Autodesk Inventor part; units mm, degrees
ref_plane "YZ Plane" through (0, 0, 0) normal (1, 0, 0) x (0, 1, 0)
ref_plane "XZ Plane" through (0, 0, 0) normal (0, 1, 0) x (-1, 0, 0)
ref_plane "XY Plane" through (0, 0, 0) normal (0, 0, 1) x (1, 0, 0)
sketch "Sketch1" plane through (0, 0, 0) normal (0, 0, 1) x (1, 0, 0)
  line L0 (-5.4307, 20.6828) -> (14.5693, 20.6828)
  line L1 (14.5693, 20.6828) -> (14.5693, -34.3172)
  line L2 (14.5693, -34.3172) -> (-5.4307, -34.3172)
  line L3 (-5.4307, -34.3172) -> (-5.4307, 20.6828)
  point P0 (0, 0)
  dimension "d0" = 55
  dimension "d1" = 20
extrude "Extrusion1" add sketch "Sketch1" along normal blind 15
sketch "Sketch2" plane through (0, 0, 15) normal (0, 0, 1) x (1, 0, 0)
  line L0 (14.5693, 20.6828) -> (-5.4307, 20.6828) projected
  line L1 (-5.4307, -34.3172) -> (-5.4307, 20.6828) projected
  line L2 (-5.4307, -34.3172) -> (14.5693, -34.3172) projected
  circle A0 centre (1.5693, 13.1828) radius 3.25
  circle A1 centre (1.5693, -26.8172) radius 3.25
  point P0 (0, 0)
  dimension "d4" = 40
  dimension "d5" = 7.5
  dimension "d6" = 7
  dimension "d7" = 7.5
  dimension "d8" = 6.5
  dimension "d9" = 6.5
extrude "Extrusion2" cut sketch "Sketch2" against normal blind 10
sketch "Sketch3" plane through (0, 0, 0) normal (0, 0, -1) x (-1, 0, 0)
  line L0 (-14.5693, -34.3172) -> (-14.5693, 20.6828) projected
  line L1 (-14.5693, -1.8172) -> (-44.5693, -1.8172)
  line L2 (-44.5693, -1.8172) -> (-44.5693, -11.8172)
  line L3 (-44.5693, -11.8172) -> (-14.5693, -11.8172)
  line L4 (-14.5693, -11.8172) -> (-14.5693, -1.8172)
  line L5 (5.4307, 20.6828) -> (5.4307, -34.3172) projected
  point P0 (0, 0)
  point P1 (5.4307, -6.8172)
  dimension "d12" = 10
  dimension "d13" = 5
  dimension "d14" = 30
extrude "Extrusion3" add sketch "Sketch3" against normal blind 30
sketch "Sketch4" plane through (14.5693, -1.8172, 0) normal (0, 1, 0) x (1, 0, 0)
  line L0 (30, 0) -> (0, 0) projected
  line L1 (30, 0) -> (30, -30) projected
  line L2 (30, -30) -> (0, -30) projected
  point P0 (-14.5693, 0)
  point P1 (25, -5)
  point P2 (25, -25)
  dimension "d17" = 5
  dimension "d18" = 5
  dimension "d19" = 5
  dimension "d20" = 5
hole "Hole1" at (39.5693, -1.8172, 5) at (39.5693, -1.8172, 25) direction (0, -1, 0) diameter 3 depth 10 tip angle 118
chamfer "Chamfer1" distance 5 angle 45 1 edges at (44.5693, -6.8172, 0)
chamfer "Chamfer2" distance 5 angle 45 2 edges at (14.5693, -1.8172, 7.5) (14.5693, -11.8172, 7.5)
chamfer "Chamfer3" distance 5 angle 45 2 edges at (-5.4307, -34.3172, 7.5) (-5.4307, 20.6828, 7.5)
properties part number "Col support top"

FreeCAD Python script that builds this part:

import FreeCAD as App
import Part
import Sketcher
Q = App.Units.Quantity


def edges_at(feature, points):
    """Names of the edges that pass closest to the given points."""
    edges = feature.Shape.Edges
    near = lambda p: min(range(len(edges)), key=lambda i: edges[i].distToShape(Part.Vertex(*p))[0])
    return sorted({f"Edge{near(p) + 1}" for p in points})

doc = App.newDocument("Part")
body = doc.addObject("PartDesign::Body", "Body")

# Sketch on XY plane
sketch1 = body.newObject("Sketcher::SketchObject", "Sketch")
sketch1.AttachmentSupport = (doc.getObject("XY_Plane"), [""])
sketch1.MapMode = "FlatFace"
sketch1.addGeometry([
    Part.LineSegment(App.Vector(15, 21, 0), App.Vector(-5, 21, 0)),
    Part.LineSegment(App.Vector(-5, 21, 0), App.Vector(-5, -34, 0)),
    Part.LineSegment(App.Vector(-5, -34, 0), App.Vector(15, -34, 0)),
    Part.LineSegment(App.Vector(15, -34, 0), App.Vector(15, 21, 0)),
], False)
sketch1.addConstraint([
    Sketcher.Constraint("Coincident", 0, 2, 1, 1),
    Sketcher.Constraint("Coincident", 1, 2, 2, 1),
    Sketcher.Constraint("Coincident", 2, 2, 3, 1),
    Sketcher.Constraint("Coincident", 3, 2, 0, 1),
    Sketcher.Constraint("Horizontal", 0),
    Sketcher.Constraint("Vertical", 1),
    Sketcher.Constraint("Horizontal", 2),
    Sketcher.Constraint("Vertical", 3),
    Sketcher.Constraint("DistanceX", 0, 2, 0, 1, Q("20 mm")),
    Sketcher.Constraint("DistanceY", 1, 2, 1, 1, Q("55 mm")),
    Sketcher.Constraint("DistanceX", 0, 2, -1, 1, Q("5.4307 mm")),
    Sketcher.Constraint("DistanceY", -1, 1, 0, 2, Q("20.6828 mm")),
])
pad1 = body.newObject("PartDesign::Pad", "Pad")
pad1.Profile = sketch1
pad1.Length = 15

# Sketch on XY plane
sketch2 = body.newObject("Sketcher::SketchObject", "Sketch001")
sketch2.AttachmentSupport = (doc.getObject("XY_Plane"), [""])
sketch2.MapMode = "FlatFace"
sketch2.AttachmentOffset = App.Placement(App.Vector(0, 0, 15), App.Rotation())
sketch2.addGeometry([
    Part.Circle(App.Vector(1.6, 13.2, 0), App.Vector(0, 0, 1), 3.2),
    Part.Circle(App.Vector(1.6, -26.8, 0), App.Vector(0, 0, 1), 3.2),
], False)
sketch2.addConstraint([
    Sketcher.Constraint("Equal", 0, 1),
    Sketcher.Constraint("Vertical", 0, 3, 1, 3),
    Sketcher.Constraint("Diameter", 0, Q("6.5 mm")),
    Sketcher.Constraint("DistanceY", 1, 3, 0, 3, Q("40 mm")),
    Sketcher.Constraint("DistanceX", -1, 1, 0, 3, Q("1.5693 mm")),
    Sketcher.Constraint("DistanceY", -1, 1, 0, 3, Q("13.1828 mm")),
])
pocket1 = body.newObject("PartDesign::Pocket", "Pocket")
pocket1.Profile = sketch2
pocket1.Length = 10

# Sketch on XY plane
sketch3 = body.newObject("Sketcher::SketchObject", "Sketch002")
sketch3.AttachmentSupport = (doc.getObject("XY_Plane"), [""])
sketch3.MapMode = "FlatFace"
sketch3.addGeometry([
    Part.LineSegment(App.Vector(45, -12, 0), App.Vector(15, -12, 0)),
    Part.LineSegment(App.Vector(15, -12, 0), App.Vector(15, -2, 0)),
    Part.LineSegment(App.Vector(15, -2, 0), App.Vector(45, -2, 0)),
    Part.LineSegment(App.Vector(45, -2, 0), App.Vector(45, -12, 0)),
], False)
sketch3.addConstraint([
    Sketcher.Constraint("Coincident", 0, 2, 1, 1),
    Sketcher.Constraint("Coincident", 1, 2, 2, 1),
    Sketcher.Constraint("Coincident", 2, 2, 3, 1),
    Sketcher.Constraint("Coincident", 3, 2, 0, 1),
    Sketcher.Constraint("Horizontal", 0),
    Sketcher.Constraint("Vertical", 1),
    Sketcher.Constraint("Horizontal", 2),
    Sketcher.Constraint("Vertical", 3),
    Sketcher.Constraint("DistanceX", 0, 2, 0, 1, Q("30 mm")),
    Sketcher.Constraint("DistanceY", 1, 1, 1, 2, Q("10 mm")),
    Sketcher.Constraint("DistanceX", -1, 1, 0, 2, Q("14.5693 mm")),
    Sketcher.Constraint("DistanceY", 0, 2, -1, 1, Q("11.8172 mm")),
])
pad2 = body.newObject("PartDesign::Pad", "Pad001")
pad2.Profile = sketch3
pad2.Length = 30

# Sketch on XZ plane
sketch4 = body.newObject("Sketcher::SketchObject", "Sketch003")
sketch4.AttachmentSupport = (doc.getObject("XZ_Plane"), [""])
sketch4.MapMode = "FlatFace"
sketch4.AttachmentOffset = App.Placement(App.Vector(0, 0, 1.8172), App.Rotation())
sketch4.addGeometry([
    Part.Circle(App.Vector(39.6, 5, 0), App.Vector(0, 0, 1), 1.5),
    Part.Circle(App.Vector(39.6, 25, 0), App.Vector(0, 0, 1), 1.5),
], False)
sketch4.addConstraint([
    Sketcher.Constraint("Equal", 0, 1),
    Sketcher.Constraint("Vertical", 0, 3, 1, 3),
    Sketcher.Constraint("Diameter", 0, Q("3 mm")),
    Sketcher.Constraint("DistanceY", -1, 1, 0, 3, Q("5 mm")),
    Sketcher.Constraint("DistanceY", -1, 1, 1, 3, Q("25 mm")),
    Sketcher.Constraint("DistanceX", -1, 1, 0, 3, Q("39.5693 mm")),
])
doc.recompute()
hole = body.newObject("PartDesign::Hole", "Hole")
hole.Profile = sketch4
hole.ThreadType = "None"
hole.Diameter = 3
hole.DepthType = "Dimension"
hole.Depth = 10
hole.DrillPoint = "Angled"
hole.DrillPointAngle = 118
hole.Reversed = True
doc.recompute()

chamfer = body.newObject("PartDesign::Chamfer", "Chamfer")
chamfer.Base = (hole, edges_at(hole, [(44.569, -6.817, 0)]))
chamfer.Size = 5
doc.recompute()

chamfer2 = body.newObject("PartDesign::Chamfer", "Chamfer001")
chamfer2.Base = (chamfer, edges_at(chamfer, [(14.569, -1.817, 7.5), (14.569, -11.817, 7.5)]))
chamfer2.Size = 5
doc.recompute()

chamfer3 = body.newObject("PartDesign::Chamfer", "Chamfer002")
chamfer3.Base = (chamfer2, edges_at(chamfer2, [(-5.431, -34.317, 7.5), (-5.431, 20.683, 7.5)]))
chamfer3.Size = 5

doc.recompute()
